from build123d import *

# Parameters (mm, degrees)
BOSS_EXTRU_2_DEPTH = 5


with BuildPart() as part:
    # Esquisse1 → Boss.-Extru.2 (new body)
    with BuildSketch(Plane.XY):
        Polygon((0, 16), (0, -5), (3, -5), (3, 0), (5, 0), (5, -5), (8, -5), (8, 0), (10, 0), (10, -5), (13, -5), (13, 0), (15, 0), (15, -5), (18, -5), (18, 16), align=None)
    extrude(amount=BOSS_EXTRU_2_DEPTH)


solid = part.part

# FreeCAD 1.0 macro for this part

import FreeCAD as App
import Part
import Sketcher

V = App.Vector
Q = App.Units.Quantity

doc = App.newDocument("Part")
params = doc.addObject("Spreadsheet::Sheet", "Params")
for row, (alias, value) in enumerate([
    ("sketch1_width", "3 mm"),
    ("sketch1_width2", "2 mm"),
    ("sketch1_height", "21 mm"),
    ("sketch1_height2", "5 mm"),
    ("pad1_length", "5 mm"),
], start=1):
    params.set(f"A{row}", alias)
    params.set(f"B{row}", "=" + value)
    params.setAlias(f"B{row}", alias)

body = doc.addObject("PartDesign::Body", "Body")

sketch1 = doc.addObject("Sketcher::SketchObject", "Sketch")
body.addObject(sketch1)
sketch1.AttachmentSupport = (doc.XY_Plane, [""])
sketch1.MapMode = "FlatFace"
sketch1.addGeometry([
    Part.LineSegment(V(0, 16, 0), V(0, -5, 0)),
    Part.LineSegment(V(0, -5, 0), V(3, -5, 0)),
    Part.LineSegment(V(3, -5, 0), V(3, 0, 0)),
    Part.LineSegment(V(3, 0, 0), V(5, 0, 0)),
    Part.LineSegment(V(5, 0, 0), V(5, -5, 0)),
    Part.LineSegment(V(5, -5, 0), V(8, -5, 0)),
    Part.LineSegment(V(8, -5, 0), V(8, 0, 0)),
    Part.LineSegment(V(8, 0, 0), V(10, 0, 0)),
    Part.LineSegment(V(10, 0, 0), V(10, -5, 0)),
    Part.LineSegment(V(10, -5, 0), V(13, -5, 0)),
    Part.LineSegment(V(13, -5, 0), V(13, 0, 0)),
    Part.LineSegment(V(13, 0, 0), V(15, 0, 0)),
    Part.LineSegment(V(15, 0, 0), V(15, -5, 0)),
    Part.LineSegment(V(15, -5, 0), V(18, -5, 0)),
    Part.LineSegment(V(18, -5, 0), V(18, 16, 0)),
    Part.LineSegment(V(18, 16, 0), V(0, 16, 0)),
], False)
sketch1.addConstraint([
    Sketcher.Constraint("Coincident", 0, 2, 1, 1),
    Sketcher.Constraint("Coincident", 1, 2, 2, 1),
    Sketcher.Constraint("Coincident", 2, 2, 3, 1),
    Sketcher.Constraint("Coincident", 3, 2, 4, 1),
    Sketcher.Constraint("Coincident", 4, 2, 5, 1),
    Sketcher.Constraint("Coincident", 5, 2, 6, 1),
    Sketcher.Constraint("Coincident", 6, 2, 7, 1),
    Sketcher.Constraint("Coincident", 7, 2, 8, 1),
    Sketcher.Constraint("Coincident", 8, 2, 9, 1),
    Sketcher.Constraint("Coincident", 9, 2, 10, 1),
    Sketcher.Constraint("Coincident", 10, 2, 11, 1),
    Sketcher.Constraint("Coincident", 11, 2, 12, 1),
    Sketcher.Constraint("Coincident", 12, 2, 13, 1),
    Sketcher.Constraint("Coincident", 13, 2, 14, 1),
    Sketcher.Constraint("Coincident", 14, 2, 15, 1),
    Sketcher.Constraint("Coincident", 15, 2, 0, 1),
    Sketcher.Constraint("Vertical", 0),
    Sketcher.Constraint("Horizontal", 1),
    Sketcher.Constraint("Vertical", 2),
    Sketcher.Constraint("Horizontal", 3),
    Sketcher.Constraint("Vertical", 4),
    Sketcher.Constraint("Horizontal", 5),
    Sketcher.Constraint("Vertical", 6),
    Sketcher.Constraint("Horizontal", 7),
    Sketcher.Constraint("Vertical", 8),
    Sketcher.Constraint("Horizontal", 9),
    Sketcher.Constraint("Vertical", 10),
    Sketcher.Constraint("Horizontal", 11),
    Sketcher.Constraint("Vertical", 12),
    Sketcher.Constraint("Horizontal", 13),
    Sketcher.Constraint("Vertical", 14),
    Sketcher.Constraint("Horizontal", 15),
    Sketcher.Constraint("PointOnObject", 0, 2, -2),
    Sketcher.Constraint("PointOnObject", 2, 2, -1),
    Sketcher.Constraint("PointOnObject", 6, 2, -1),
    Sketcher.Constraint("PointOnObject", 10, 2, -1),
    Sketcher.Constraint("Horizontal", 1, 2, 4, 2),
    Sketcher.Constraint("Horizontal", 5, 2, 8, 2),
    Sketcher.Constraint("Horizontal", 9, 2, 12, 2),
    Sketcher.Constraint("Equal", 1, 5),
    Sketcher.Constraint("Equal", 3, 7),
    Sketcher.Constraint("Equal", 5, 9),
    Sketcher.Constraint("Equal", 7, 11),
    Sketcher.Constraint("Equal", 9, 13),
    Sketcher.Constraint("DistanceX", 1, 1, 1, 2, Q("3 mm")),
    Sketcher.Constraint("DistanceX", 3, 1, 3, 2, Q("2 mm")),
    Sketcher.Constraint("DistanceY", 0, 2, 0, 1, Q("21 mm")),
    Sketcher.Constraint("DistanceY", 2, 1, 2, 2, Q("5 mm")),
])
sketch1.setExpression("Constraints[44]", "Params.sketch1_width")
sketch1.setExpression("Constraints[45]", "Params.sketch1_width2")
sketch1.setExpression("Constraints[46]", "Params.sketch1_height")
sketch1.setExpression("Constraints[47]", "Params.sketch1_height2")
pad1 = doc.addObject("PartDesign::Pad", "Pad")
body.addObject(pad1)
pad1.Profile = sketch1
pad1.setExpression("Length", "Params.pad1_length")

doc.recompute()
